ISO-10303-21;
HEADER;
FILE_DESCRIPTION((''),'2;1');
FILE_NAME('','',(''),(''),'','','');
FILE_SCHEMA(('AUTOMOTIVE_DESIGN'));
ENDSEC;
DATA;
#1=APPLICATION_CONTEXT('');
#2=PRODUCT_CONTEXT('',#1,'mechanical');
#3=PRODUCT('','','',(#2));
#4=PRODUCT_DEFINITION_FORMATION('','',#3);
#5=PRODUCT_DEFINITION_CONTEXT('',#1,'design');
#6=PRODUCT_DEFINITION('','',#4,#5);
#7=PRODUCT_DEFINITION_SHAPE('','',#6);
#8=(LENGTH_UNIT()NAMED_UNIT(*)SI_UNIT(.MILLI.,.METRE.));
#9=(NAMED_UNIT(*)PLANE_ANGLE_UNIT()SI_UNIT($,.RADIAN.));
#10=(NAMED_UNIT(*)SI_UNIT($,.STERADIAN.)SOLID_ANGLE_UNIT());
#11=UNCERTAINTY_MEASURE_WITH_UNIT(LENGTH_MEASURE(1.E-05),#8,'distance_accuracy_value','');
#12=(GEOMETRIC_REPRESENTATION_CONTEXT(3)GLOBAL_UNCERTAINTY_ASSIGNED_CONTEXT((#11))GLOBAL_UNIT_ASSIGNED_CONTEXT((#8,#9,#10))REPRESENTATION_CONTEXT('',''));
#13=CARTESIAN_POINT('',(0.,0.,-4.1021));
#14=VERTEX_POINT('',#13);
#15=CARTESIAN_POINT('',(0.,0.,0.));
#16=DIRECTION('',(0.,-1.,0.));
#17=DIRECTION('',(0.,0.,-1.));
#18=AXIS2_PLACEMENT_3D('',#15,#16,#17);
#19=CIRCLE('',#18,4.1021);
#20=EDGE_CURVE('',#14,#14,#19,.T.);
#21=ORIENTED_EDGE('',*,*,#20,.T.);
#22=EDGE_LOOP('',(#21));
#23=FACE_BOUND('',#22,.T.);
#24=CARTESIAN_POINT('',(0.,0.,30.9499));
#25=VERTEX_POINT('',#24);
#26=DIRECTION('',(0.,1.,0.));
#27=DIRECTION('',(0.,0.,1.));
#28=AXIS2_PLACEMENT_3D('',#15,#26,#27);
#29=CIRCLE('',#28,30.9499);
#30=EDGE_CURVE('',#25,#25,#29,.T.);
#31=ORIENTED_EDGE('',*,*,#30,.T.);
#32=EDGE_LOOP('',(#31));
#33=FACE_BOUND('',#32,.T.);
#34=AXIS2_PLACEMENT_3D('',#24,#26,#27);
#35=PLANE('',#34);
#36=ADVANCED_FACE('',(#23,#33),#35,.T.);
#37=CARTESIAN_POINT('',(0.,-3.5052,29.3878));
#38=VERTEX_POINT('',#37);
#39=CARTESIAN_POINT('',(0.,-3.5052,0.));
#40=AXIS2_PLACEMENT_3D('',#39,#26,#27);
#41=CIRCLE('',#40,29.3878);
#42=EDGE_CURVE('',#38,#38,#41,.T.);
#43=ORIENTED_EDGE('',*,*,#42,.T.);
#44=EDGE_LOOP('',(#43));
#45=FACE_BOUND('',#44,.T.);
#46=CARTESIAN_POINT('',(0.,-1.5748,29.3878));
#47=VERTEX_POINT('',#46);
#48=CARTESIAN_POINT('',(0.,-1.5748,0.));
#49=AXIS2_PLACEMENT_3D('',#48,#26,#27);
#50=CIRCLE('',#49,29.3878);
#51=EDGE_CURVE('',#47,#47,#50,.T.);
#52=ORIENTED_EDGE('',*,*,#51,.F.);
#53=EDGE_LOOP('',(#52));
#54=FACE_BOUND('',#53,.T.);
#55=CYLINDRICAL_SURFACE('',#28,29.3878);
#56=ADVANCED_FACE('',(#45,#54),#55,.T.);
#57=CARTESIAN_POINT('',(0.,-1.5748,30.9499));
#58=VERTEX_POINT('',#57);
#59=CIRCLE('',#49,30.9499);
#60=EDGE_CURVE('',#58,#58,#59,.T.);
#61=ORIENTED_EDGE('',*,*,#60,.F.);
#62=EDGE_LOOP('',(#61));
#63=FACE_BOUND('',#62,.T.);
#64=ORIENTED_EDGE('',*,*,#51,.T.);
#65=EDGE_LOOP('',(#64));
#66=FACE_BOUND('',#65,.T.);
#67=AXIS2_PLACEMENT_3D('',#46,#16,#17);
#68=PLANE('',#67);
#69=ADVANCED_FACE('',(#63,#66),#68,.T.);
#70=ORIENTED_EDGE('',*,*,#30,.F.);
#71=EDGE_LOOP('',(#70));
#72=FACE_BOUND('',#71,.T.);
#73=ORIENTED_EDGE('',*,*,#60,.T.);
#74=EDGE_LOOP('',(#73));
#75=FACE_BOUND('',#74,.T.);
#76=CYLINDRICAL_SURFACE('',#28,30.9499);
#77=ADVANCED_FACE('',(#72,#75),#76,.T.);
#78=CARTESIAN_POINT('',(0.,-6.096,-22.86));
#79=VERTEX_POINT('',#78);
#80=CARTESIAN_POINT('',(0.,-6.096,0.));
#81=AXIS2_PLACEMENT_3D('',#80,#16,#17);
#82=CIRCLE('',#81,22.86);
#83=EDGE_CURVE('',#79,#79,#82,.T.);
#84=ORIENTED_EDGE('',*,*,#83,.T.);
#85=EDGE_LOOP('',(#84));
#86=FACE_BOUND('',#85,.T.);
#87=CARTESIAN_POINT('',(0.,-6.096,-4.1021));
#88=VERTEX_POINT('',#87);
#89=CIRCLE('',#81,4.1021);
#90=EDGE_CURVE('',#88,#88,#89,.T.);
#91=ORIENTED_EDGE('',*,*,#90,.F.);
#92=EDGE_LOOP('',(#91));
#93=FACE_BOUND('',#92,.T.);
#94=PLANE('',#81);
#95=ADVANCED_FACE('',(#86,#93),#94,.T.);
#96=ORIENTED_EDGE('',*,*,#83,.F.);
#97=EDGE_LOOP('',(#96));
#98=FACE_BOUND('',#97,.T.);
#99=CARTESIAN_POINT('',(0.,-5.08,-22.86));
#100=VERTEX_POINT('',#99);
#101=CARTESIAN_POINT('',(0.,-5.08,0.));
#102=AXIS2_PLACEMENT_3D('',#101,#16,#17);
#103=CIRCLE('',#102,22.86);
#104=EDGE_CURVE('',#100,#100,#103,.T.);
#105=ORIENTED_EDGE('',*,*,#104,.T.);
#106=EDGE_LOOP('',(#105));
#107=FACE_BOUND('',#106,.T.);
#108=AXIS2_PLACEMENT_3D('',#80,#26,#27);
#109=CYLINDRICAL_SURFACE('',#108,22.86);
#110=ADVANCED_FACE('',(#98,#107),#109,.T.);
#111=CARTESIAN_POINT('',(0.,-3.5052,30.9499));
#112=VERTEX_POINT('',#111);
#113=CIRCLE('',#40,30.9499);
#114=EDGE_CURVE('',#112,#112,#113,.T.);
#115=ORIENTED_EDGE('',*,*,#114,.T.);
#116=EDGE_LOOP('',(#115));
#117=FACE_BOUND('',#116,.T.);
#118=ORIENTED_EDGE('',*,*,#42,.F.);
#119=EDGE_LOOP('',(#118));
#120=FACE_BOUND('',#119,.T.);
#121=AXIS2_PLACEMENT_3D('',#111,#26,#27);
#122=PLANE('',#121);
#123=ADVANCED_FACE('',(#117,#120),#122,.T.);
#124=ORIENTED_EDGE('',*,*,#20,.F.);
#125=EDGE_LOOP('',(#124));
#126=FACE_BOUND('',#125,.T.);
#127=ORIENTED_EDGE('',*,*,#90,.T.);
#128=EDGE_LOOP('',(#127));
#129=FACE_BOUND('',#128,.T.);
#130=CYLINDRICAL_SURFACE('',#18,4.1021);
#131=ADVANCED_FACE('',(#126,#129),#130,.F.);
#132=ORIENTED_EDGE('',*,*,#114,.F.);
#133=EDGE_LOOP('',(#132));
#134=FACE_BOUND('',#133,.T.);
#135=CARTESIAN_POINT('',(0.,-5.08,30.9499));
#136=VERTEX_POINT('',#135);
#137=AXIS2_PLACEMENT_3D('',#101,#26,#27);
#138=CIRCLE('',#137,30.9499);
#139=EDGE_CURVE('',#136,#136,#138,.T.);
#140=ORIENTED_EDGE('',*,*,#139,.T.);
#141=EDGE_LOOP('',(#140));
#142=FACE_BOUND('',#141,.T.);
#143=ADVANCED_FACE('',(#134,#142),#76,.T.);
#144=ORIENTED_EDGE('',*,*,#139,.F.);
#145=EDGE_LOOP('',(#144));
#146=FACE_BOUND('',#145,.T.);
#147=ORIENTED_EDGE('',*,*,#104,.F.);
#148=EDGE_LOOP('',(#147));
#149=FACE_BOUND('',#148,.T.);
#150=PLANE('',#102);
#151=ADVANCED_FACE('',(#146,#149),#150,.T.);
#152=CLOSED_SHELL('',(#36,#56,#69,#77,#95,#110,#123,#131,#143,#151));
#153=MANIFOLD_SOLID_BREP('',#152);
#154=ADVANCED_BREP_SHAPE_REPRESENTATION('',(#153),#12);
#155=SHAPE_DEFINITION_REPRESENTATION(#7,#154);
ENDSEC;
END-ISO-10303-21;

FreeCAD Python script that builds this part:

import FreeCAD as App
import Part
import Sketcher
from FreeCAD import Vector
Q = App.Units.Quantity

doc = App.newDocument("Part")
body = doc.addObject("PartDesign::Body", "Body")

sketch1 = doc.addObject("Sketcher::SketchObject", "Sketch")
body.addObject(sketch1)
sketch1.AttachmentSupport = (doc.YZ_Plane, [""])
sketch1.MapMode = "FlatFace"
sketch1.addGeometry(Part.LineSegment(Vector(-5.08, 0, 0), Vector(0, 0, 0)), False)
sketch1.addGeometry(Part.LineSegment(Vector(0, 0, 0), Vector(0, 30.9499, 0)), False)
sketch1.addGeometry(Part.LineSegment(Vector(0, 30.9499, 0), Vector(-1.5748, 30.9499, 0)), False)
sketch1.addGeometry(Part.LineSegment(Vector(-1.5748, 30.9499, 0), Vector(-1.5748, 29.3878, 0)), False)
sketch1.addGeometry(Part.LineSegment(Vector(-1.5748, 29.3878, 0), Vector(-3.5052, 29.3878, 0)), False)
sketch1.addGeometry(Part.LineSegment(Vector(-3.5052, 29.3878, 0), Vector(-3.5052, 30.9499, 0)), False)
sketch1.addGeometry(Part.LineSegment(Vector(-3.5052, 30.9499, 0), Vector(-5.08, 30.9499, 0)), False)
sketch1.addGeometry(Part.LineSegment(Vector(-5.08, 30.9499, 0), Vector(-5.08, 0, 0)), False)
sketch1.addConstraint(Sketcher.Constraint("Coincident", 0, 2, 1, 1))
sketch1.addConstraint(Sketcher.Constraint("Coincident", 1, 2, 2, 1))
sketch1.addConstraint(Sketcher.Constraint("Coincident", 2, 2, 3, 1))
sketch1.addConstraint(Sketcher.Constraint("Coincident", 3, 2, 4, 1))
sketch1.addConstraint(Sketcher.Constraint("Coincident", 4, 2, 5, 1))
sketch1.addConstraint(Sketcher.Constraint("Coincident", 5, 2, 6, 1))
sketch1.addConstraint(Sketcher.Constraint("Coincident", 6, 2, 7, 1))
sketch1.addConstraint(Sketcher.Constraint("Coincident", 7, 2, 0, 1))
sketch1.addConstraint(Sketcher.Constraint("Horizontal", 0))
sketch1.addConstraint(Sketcher.Constraint("Vertical", 1))
sketch1.addConstraint(Sketcher.Constraint("Horizontal", 2))
sketch1.addConstraint(Sketcher.Constraint("Vertical", 3))
sketch1.addConstraint(Sketcher.Constraint("Horizontal", 4))
sketch1.addConstraint(Sketcher.Constraint("Vertical", 5))
sketch1.addConstraint(Sketcher.Constraint("Horizontal", 6))
sketch1.addConstraint(Sketcher.Constraint("Vertical", 7))
sketch1.addConstraint(Sketcher.Constraint("Coincident", 0, 2, -1, 1))
sketch1.addConstraint(Sketcher.Constraint("Horizontal", 2, 2, 5, 2))
sketch1.addConstraint(Sketcher.Constraint("Equal", 2, 6))
sketch1.addConstraint(Sketcher.Constraint("DistanceX", 0, 1, 0, 2, Q("0.2 in")))
sketch1.addConstraint(Sketcher.Constraint("DistanceX", 2, 2, 2, 1, Q("0.062 in")))
sketch1.addConstraint(Sketcher.Constraint("DistanceY", 1, 1, 1, 2, Q("1.2185 in")))
sketch1.addConstraint(Sketcher.Constraint("DistanceY", 3, 2, 3, 1, Q("0.0615 in")))
revolution = doc.addObject("PartDesign::Revolution", "Revolution")
body.addObject(revolution)
revolution.Profile = sketch1
revolution.ReferenceAxis = (sketch1, ["H_Axis"])
revolution.Angle = 360

sketch2 = doc.addObject("Sketcher::SketchObject", "Sketch001")
body.addObject(sketch2)
sketch2.AttachmentSupport = (doc.XZ_Plane, [""])
sketch2.MapMode = "FlatFace"
sketch2.AttachmentOffset = App.Placement(Vector(0, 0, 0.2 * 25.4), App.Rotation())
sketch2.addGeometry(Part.Circle(Vector(0, 0, 0), Vector(0, 0, 1), 4.1021), False)
sketch2.addConstraint(Sketcher.Constraint("Coincident", 0, 3, -1, 1))
sketch2.addConstraint(Sketcher.Constraint("Diameter", 0, Q("0.323 in")))
pocket1 = doc.addObject("PartDesign::Pocket", "Pocket")
body.addObject(pocket1)
pocket1.Profile = sketch2
pocket1.Type = "ThroughAll"

sketch3 = doc.addObject("Sketcher::SketchObject", "Sketch002")
body.addObject(sketch3)
sketch3.AttachmentSupport = (doc.XZ_Plane, [""])
sketch3.MapMode = "FlatFace"
sketch3.AttachmentOffset = App.Placement(Vector(0, 0, 0.24 * 25.4), App.Rotation())
sketch3.addGeometry(Part.Circle(Vector(0, 0, 0), Vector(0, 0, 1), 22.86), False)
sketch3.addGeometry(Part.Circle(Vector(0, 0, 0), Vector(0, 0, 1), 4.1021), False)
sketch3.addConstraint(Sketcher.Constraint("Coincident", 0, 3, -1, 1))
sketch3.addConstraint(Sketcher.Constraint("Coincident", 1, 3, -1, 1))
sketch3.addConstraint(Sketcher.Constraint("Diameter", 0, Q("1.8 in")))
sketch3.addConstraint(Sketcher.Constraint("Diameter", 1, Q("0.323 in")))
pad1 = doc.addObject("PartDesign::Pad", "Pad")
body.addObject(pad1)
pad1.Profile = sketch3
pad1.Length = Q("0.04 in")
pad1.Reversed = True

doc.recompute()
